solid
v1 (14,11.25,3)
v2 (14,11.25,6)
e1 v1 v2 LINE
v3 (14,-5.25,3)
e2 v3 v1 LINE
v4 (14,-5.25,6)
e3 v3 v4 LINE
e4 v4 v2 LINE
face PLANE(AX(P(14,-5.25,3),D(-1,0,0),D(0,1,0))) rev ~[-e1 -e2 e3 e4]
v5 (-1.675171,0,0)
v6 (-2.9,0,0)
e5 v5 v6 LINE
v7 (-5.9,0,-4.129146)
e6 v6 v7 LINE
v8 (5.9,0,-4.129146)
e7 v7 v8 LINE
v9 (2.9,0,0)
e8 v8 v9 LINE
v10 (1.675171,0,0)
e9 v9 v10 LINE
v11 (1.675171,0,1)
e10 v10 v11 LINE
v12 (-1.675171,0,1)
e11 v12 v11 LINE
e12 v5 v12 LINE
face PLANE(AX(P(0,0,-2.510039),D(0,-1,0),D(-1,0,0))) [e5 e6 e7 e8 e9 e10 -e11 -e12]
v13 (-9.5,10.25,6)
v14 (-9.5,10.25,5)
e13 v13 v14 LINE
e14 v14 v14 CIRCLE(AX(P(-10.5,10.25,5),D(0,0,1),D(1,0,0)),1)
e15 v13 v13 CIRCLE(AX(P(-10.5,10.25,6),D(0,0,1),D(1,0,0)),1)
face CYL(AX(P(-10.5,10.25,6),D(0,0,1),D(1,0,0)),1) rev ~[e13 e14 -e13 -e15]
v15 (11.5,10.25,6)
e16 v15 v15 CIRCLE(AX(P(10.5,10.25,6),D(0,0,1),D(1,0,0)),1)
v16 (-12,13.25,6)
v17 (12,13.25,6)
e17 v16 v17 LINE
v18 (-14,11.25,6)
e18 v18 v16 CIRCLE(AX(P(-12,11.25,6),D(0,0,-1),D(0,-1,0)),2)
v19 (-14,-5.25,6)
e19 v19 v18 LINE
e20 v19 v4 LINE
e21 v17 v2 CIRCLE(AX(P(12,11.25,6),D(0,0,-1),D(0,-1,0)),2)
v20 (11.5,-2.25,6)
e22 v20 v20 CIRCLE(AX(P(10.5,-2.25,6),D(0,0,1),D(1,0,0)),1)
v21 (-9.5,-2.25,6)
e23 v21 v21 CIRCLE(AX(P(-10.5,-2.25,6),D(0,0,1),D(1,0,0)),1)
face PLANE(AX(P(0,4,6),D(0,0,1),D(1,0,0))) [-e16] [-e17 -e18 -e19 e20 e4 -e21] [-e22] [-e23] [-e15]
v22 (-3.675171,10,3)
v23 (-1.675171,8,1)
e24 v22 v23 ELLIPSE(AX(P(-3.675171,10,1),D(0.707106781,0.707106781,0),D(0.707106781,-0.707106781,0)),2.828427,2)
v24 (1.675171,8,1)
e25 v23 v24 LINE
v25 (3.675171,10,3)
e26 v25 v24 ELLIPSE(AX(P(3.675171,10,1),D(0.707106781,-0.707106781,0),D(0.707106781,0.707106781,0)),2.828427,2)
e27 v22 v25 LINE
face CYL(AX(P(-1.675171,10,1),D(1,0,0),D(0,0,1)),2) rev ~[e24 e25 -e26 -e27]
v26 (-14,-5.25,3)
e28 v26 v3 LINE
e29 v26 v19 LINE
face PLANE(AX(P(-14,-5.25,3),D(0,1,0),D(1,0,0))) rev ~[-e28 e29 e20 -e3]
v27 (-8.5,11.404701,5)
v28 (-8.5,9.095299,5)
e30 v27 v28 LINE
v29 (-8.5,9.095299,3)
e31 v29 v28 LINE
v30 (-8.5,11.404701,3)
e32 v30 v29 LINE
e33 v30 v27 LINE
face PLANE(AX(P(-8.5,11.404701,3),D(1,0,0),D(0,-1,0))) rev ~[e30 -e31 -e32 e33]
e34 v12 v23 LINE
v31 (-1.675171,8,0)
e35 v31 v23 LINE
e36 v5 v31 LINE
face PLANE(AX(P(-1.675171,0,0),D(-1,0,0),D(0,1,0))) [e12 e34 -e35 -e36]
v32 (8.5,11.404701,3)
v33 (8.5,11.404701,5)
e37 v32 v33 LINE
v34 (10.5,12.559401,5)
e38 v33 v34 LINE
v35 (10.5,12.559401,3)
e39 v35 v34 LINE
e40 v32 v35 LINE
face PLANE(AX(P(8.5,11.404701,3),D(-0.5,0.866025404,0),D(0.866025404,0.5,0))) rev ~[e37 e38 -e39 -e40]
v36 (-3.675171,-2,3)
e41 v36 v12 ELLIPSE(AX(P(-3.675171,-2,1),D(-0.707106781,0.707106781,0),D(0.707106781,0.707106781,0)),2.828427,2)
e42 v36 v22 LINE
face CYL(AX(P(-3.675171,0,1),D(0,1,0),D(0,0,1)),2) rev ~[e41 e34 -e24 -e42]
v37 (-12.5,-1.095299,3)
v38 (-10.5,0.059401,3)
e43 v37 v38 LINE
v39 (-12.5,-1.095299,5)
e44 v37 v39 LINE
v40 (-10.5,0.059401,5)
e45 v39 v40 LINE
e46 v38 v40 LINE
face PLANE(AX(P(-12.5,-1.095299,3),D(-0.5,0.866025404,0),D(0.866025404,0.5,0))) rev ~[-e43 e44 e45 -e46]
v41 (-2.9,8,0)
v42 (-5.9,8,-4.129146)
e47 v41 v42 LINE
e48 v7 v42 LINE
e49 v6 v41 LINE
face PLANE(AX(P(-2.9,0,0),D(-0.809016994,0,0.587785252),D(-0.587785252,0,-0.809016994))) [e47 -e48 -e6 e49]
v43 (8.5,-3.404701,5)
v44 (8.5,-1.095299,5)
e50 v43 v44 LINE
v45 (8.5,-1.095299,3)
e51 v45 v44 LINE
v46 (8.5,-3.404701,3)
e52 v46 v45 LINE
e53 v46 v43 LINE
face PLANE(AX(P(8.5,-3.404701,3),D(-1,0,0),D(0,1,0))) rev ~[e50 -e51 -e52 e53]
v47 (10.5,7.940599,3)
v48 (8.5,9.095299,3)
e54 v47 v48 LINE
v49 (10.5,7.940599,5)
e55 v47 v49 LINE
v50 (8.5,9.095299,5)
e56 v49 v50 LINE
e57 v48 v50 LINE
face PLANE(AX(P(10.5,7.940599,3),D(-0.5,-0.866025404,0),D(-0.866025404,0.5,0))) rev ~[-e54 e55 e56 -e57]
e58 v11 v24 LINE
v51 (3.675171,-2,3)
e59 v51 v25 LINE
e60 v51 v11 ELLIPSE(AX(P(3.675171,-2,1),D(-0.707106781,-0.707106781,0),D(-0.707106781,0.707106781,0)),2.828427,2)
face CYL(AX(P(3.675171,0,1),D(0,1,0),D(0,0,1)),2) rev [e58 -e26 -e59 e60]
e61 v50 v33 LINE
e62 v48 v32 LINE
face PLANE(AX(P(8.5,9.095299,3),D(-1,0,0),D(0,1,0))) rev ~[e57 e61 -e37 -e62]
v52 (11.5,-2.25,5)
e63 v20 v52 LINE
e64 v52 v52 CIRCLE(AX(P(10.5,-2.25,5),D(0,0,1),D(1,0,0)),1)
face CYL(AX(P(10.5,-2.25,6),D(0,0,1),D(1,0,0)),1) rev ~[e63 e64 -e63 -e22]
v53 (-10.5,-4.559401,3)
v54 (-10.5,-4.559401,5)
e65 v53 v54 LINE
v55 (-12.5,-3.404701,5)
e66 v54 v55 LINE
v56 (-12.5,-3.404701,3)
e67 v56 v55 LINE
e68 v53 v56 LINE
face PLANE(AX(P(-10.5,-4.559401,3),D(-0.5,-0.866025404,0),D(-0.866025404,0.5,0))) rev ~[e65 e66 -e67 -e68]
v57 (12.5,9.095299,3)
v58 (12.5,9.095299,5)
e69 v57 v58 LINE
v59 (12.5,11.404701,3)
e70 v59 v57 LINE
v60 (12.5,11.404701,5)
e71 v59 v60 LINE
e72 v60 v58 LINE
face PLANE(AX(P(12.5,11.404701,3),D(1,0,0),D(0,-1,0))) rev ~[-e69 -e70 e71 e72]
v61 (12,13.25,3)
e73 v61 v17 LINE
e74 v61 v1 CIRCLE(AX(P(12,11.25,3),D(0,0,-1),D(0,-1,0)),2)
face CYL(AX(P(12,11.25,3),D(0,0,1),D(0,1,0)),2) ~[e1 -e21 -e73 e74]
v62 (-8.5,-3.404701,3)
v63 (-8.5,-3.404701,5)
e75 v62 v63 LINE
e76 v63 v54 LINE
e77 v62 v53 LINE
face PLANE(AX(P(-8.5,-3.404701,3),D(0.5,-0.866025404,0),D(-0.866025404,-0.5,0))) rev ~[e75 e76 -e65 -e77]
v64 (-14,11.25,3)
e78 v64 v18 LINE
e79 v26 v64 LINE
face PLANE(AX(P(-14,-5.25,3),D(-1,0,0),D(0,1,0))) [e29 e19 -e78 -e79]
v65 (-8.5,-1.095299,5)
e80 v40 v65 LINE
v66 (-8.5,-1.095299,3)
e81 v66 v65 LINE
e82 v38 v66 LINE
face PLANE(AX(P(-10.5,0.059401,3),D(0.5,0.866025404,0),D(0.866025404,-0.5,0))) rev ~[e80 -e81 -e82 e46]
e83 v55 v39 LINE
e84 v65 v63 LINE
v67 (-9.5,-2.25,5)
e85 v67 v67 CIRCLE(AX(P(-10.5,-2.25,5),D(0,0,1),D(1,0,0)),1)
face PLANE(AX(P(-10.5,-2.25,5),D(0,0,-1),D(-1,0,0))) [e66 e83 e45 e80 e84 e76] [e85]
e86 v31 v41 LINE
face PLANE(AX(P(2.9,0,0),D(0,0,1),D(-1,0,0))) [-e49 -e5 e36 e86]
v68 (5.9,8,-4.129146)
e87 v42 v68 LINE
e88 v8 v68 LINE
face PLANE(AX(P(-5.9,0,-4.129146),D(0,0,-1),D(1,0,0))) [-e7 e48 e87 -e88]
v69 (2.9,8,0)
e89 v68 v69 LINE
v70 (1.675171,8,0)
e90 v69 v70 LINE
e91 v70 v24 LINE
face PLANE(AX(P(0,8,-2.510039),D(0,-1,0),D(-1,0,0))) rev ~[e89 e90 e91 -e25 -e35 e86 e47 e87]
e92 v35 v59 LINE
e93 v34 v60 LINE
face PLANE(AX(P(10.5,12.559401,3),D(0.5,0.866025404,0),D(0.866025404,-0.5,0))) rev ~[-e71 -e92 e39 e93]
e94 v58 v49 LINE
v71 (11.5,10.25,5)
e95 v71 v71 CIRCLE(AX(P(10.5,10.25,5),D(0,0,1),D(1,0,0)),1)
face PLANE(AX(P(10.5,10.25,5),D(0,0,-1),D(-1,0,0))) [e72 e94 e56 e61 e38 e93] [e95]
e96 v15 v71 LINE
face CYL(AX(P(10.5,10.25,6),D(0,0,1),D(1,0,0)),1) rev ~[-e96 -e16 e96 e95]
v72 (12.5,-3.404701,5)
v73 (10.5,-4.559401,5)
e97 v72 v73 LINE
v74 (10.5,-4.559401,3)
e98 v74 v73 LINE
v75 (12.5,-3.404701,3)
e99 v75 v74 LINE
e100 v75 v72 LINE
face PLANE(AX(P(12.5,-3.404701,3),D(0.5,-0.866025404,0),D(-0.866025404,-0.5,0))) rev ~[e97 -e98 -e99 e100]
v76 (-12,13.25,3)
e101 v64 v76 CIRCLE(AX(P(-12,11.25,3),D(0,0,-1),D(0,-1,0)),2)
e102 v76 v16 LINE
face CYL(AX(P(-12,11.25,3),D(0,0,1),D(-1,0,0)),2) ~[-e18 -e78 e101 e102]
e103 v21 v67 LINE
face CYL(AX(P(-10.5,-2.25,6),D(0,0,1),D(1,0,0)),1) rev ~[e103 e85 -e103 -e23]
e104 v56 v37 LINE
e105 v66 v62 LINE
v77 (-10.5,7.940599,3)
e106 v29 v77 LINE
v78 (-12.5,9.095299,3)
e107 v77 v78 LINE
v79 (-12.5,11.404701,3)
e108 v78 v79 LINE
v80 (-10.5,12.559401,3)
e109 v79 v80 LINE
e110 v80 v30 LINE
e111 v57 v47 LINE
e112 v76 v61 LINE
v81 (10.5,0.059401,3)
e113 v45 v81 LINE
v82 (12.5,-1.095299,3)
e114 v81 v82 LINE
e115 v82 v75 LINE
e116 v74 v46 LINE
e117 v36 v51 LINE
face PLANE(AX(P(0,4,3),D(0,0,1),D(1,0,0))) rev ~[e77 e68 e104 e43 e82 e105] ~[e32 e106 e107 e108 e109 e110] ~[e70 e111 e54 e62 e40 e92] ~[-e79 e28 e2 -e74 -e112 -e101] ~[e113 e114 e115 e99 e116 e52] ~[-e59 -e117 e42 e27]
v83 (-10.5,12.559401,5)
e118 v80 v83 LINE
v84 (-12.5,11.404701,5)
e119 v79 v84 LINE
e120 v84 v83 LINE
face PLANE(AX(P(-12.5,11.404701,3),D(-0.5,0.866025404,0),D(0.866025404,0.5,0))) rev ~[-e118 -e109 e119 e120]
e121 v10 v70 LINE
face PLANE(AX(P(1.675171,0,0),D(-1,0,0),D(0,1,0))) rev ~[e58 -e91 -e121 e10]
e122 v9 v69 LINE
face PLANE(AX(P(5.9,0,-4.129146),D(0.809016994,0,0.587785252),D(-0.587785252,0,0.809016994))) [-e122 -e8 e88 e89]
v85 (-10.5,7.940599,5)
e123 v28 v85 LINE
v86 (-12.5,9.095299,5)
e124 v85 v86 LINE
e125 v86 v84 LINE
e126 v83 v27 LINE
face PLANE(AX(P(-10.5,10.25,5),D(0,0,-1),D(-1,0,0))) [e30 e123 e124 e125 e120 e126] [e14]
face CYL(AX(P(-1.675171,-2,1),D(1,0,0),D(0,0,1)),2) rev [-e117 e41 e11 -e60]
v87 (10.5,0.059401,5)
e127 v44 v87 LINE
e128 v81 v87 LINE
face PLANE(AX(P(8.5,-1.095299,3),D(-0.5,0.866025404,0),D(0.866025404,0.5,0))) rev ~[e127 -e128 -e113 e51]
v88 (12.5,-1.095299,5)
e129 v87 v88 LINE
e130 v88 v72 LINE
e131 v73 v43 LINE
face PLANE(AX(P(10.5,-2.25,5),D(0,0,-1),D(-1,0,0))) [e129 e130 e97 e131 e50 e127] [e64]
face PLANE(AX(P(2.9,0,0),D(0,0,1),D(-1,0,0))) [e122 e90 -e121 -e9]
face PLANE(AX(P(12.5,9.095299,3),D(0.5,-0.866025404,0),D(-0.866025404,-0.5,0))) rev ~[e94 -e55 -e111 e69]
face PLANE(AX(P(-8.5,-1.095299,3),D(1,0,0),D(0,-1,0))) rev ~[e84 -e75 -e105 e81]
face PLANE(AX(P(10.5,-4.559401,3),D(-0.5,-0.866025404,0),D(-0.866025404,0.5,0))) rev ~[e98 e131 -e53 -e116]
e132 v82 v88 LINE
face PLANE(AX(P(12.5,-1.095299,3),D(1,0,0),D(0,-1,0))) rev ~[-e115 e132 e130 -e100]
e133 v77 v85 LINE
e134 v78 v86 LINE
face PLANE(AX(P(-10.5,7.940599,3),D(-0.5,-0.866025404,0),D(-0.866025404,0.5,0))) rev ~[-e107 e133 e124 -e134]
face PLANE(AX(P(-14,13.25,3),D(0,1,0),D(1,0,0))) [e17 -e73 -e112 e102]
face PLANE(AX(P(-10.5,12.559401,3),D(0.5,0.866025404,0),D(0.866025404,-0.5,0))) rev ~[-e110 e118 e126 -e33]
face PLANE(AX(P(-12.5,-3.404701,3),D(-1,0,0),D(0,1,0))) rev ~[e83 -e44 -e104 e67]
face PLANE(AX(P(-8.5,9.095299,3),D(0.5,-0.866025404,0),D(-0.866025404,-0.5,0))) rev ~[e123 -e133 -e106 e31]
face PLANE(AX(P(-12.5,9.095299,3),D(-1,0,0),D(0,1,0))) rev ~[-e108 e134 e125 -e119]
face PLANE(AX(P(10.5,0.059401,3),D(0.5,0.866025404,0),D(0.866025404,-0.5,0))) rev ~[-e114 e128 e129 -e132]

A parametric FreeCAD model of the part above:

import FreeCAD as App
import Part
import Sketcher
from FreeCAD import Vector
Q = App.Units.Quantity


def edges_at(feature, points):
    """Names of the edges that pass closest to the given points."""
    edges = feature.Shape.Edges
    near = lambda p: min(range(len(edges)), key=lambda i: edges[i].distToShape(Part.Vertex(*p))[0])
    return sorted({f"Edge{near(p) + 1}" for p in points})


def add_polygon(sketch, points):
    """Adds a closed chain of lines whose ends are joined by coincident constraints."""
    first, n = sketch.GeometryCount, len(points)
    for a, b in zip(points, points[1:] + points[:1]):
        sketch.addGeometry(Part.LineSegment(App.Vector(*a, 0), App.Vector(*b, 0)), False)
    for i in range(n):
        sketch.addConstraint(Sketcher.Constraint("Coincident", first + i, 2, first + (i + 1) % n, 1))

doc = App.newDocument("Part")
params = doc.addObject("Spreadsheet::Sheet", "Params")
for row, (alias, value) in enumerate([
    ("sketch1_width", "5.8 mm"),
    ("sketch1_width2", "11.8 mm"),
    ("pad1_length", "8 mm"),
    ("sketch2_height", "8 mm"),
    ("pad2_length", "3 mm"),
    ("sketch3_width", "28 mm"),
    ("sketch3_height", "18.5 mm"),
    ("pad3_length", "3 mm"),
    ("fillet_radius", "2 mm"),
    ("sketch4_diameter", "2 mm"),
    ("pocket1_length", "3 mm"),
    ("pocket2_length", "2 mm"),
    ("fillet2_radius", "2 mm"),
], start=1):
    params.set(f"A{row}", alias)
    params.set(f"B{row}", "=" + value)
    params.setAlias(f"B{row}", alias)

body = doc.addObject("PartDesign::Body", "Body")

sketch1 = body.newObject("Sketcher::SketchObject", "Sketch")
sketch1.AttachmentSupport = (doc.getObject("XZ_Plane"), [""])
sketch1.MapMode = "FlatFace"
add_polygon(sketch1, [(-6, -4), (-3, 0), (3, 0), (6, -4)])
sketch1.addConstraint([
    Sketcher.Constraint("Horizontal", 1),
    Sketcher.Constraint("Horizontal", 3),
    Sketcher.Constraint("Symmetric", 0, 2, 1, 2, -1, 1),
    Sketcher.Constraint("Equal", 0, 2),
    Sketcher.Constraint("Angle", 0, Q("54 deg")),
    Sketcher.Constraint("DistanceX", 1, 1, 1, 2, Q("5.8 mm")),
    Sketcher.Constraint("DistanceX", 3, 2, 3, 1, Q("11.8 mm")),
])
sketch1.setExpression("Constraints[9]", "Params.sketch1_width")
sketch1.setExpression("Constraints[10]", "Params.sketch1_width2")
pad1 = body.newObject("PartDesign::Pad", "Pad")
pad1.Profile = sketch1
pad1.setExpression("Length", "Params.pad1_length")
pad1.Reversed = True

sketch2 = body.newObject("Sketcher::SketchObject", "Sketch001")
sketch2.AttachmentSupport = (doc.getObject("XY_Plane"), [""])
sketch2.MapMode = "FlatFace"
add_polygon(sketch2, [(-1.7, 8), (-1.7, 0), (1.7, 0), (1.7, 8)])
sketch2.addConstraint([
    Sketcher.Constraint("Vertical", 0),
    Sketcher.Constraint("Horizontal", 1),
    Sketcher.Constraint("Vertical", 2),
    Sketcher.Constraint("Horizontal", 3),
    Sketcher.Constraint("Symmetric", 0, 2, 1, 2, -1, 1),
    Sketcher.Constraint("DistanceY", 0, 2, 0, 1, Q("8 mm")),
    Sketcher.Constraint("DistanceX", 1, 1, 1, 2, Q("3.350341 mm")),
])
sketch2.setExpression("Constraints[9]", "Params.sketch2_height")
pad2 = body.newObject("PartDesign::Pad", "Pad001")
pad2.Profile = sketch2
pad2.setExpression("Length", "Params.pad2_length")

sketch3 = body.newObject("Sketcher::SketchObject", "Sketch002")
sketch3.AttachmentSupport = (doc.getObject("XY_Plane"), [""])
sketch3.MapMode = "FlatFace"
sketch3.AttachmentOffset = App.Placement(Vector(0, 0, 3), App.Rotation())
add_polygon(sketch3, [(-14, 13), (-14, -5), (14, -5), (14, 13)])
sketch3.addConstraint([
    Sketcher.Constraint("Vertical", 0),
    Sketcher.Constraint("Horizontal", 1),
    Sketcher.Constraint("Vertical", 2),
    Sketcher.Constraint("Horizontal", 3),
    Sketcher.Constraint("DistanceX", 1, 1, 1, 2, Q("28 mm")),
    Sketcher.Constraint("DistanceY", 0, 2, 0, 1, Q("18.5 mm")),
    Sketcher.Constraint("DistanceX", 0, 2, -1, 1, Q("14 mm")),
    Sketcher.Constraint("DistanceY", 0, 2, -1, 1, Q("5.25 mm")),
])
sketch3.setExpression("Constraints[8]", "Params.sketch3_width")
sketch3.setExpression("Constraints[9]", "Params.sketch3_height")
pad3 = body.newObject("PartDesign::Pad", "Pad002")
pad3.Profile = sketch3
pad3.setExpression("Length", "Params.pad3_length")
doc.recompute()

fillet = body.newObject("PartDesign::Fillet", "Fillet")
fillet.Base = (pad3, edges_at(pad3, [
    (1.675, 4, 3),
    (0, 8, 3),
    (-1.675, 4, 3),
    (0, 0, 3),
]))
fillet.setExpression("Radius", "Params.fillet_radius")

sketch4 = body.newObject("Sketcher::SketchObject", "Sketch003")
sketch4.AttachmentSupport = (doc.getObject("XY_Plane"), [""])
sketch4.MapMode = "FlatFace"
sketch4.AttachmentOffset = App.Placement(Vector(0, 0, 6), App.Rotation())
sketch4.addGeometry([
    Part.Circle(Vector(-10.5, 10.2, 0), Vector(0, 0, 1), 1),
    Part.Circle(Vector(10.5, 10.2, 0), Vector(0, 0, 1), 1),
    Part.Circle(Vector(10.5, -2.2, 0), Vector(0, 0, 1), 1),
    Part.Circle(Vector(-10.5, -2.2, 0), Vector(0, 0, 1), 1),
], False)
sketch4.addConstraint([
    Sketcher.Constraint("Equal", 0, 1),
    Sketcher.Constraint("Equal", 1, 2),
    Sketcher.Constraint("Equal", 2, 3),
    Sketcher.Constraint("Symmetric", 0, 3, 1, 3, -2),
    Sketcher.Constraint("Symmetric", 2, 3, 3, 3, -2),
    Sketcher.Constraint("Vertical", 1, 3, 2, 3),
    Sketcher.Constraint("Diameter", 0, Q("2 mm")),
    Sketcher.Constraint("DistanceX", 0, 3, 1, 3, Q("21 mm")),
    Sketcher.Constraint("DistanceY", 2, 3, 1, 3, Q("12.5 mm")),
    Sketcher.Constraint("DistanceY", -1, 1, 0, 3, Q("10.25 mm")),
])
sketch4.setExpression("Constraints[6]", "Params.sketch4_diameter")
pocket1 = body.newObject("PartDesign::Pocket", "Pocket")
pocket1.Profile = sketch4
pocket1.setExpression("Length", "Params.pocket1_length")

sketch5 = body.newObject("Sketcher::SketchObject", "Sketch004")
sketch5.AttachmentSupport = (doc.getObject("XY_Plane"), [""])
sketch5.MapMode = "FlatFace"
sketch5.AttachmentOffset = App.Placement(Vector(0, 0, 3), App.Rotation())
add_polygon(sketch5, [(10.5, 12.6), (12.5, 11.4), (12.5, 9.1), (10.5, 7.9), (8.5, 9.1), (8.5, 11.4)])
add_polygon(sketch5, [(-10.5, 12.6), (-8.5, 11.4), (-8.5, 9.1), (-10.5, 7.9), (-12.5, 9.1), (-12.5, 11.4)])
add_polygon(sketch5, [(10.5, -4.6), (8.5, -3.4), (8.5, -1.1), (10.5, 0.1), (12.5, -1.1), (12.5, -3.4)])
add_polygon(sketch5, [(-10.5, -4.6), (-12.5, -3.4), (-12.5, -1.1), (-10.5, 0.1), (-8.5, -1.1), (-8.5, -3.4)])
sketch5.addConstraint([
    Sketcher.Constraint("Vertical", 1),
    Sketcher.Constraint("Vertical", 4),
    Sketcher.Constraint("Vertical", 7),
    Sketcher.Constraint("Vertical", 10),
    Sketcher.Constraint("Vertical", 13),
    Sketcher.Constraint("Vertical", 16),
    Sketcher.Constraint("Vertical", 19),
    Sketcher.Constraint("Vertical", 22),
    Sketcher.Constraint("Symmetric", 4, 2, 6, 2, -2),
    Sketcher.Constraint("Symmetric", 2, 2, 8, 2, -2),
    Sketcher.Constraint("Symmetric", 1, 2, 9, 2, -2),
    Sketcher.Constraint("Symmetric", 5, 2, 11, 2, -2),
    Sketcher.Constraint("Symmetric", 16, 2, 18, 2, -2),
    Sketcher.Constraint("Symmetric", 14, 2, 20, 2, -2),
    Sketcher.Constraint("Symmetric", 13, 2, 21, 2, -2),
    Sketcher.Constraint("Symmetric", 17, 2, 23, 2, -2),
    Sketcher.Constraint("Parallel", 0, 3),
    Sketcher.Constraint("Parallel", 2, 5),
    Sketcher.Constraint("Parallel", 3, 6),
    Sketcher.Constraint("Parallel", 5, 8),
    Sketcher.Constraint("Parallel", 8, 11),
    Sketcher.Constraint("Parallel", 9, 12),
    Sketcher.Constraint("Parallel", 11, 14),
    Sketcher.Constraint("Parallel", 12, 15),
    Sketcher.Constraint("Parallel", 14, 17),
    Sketcher.Constraint("Parallel", 17, 20),
    Sketcher.Constraint("Parallel", 20, 23),
    Sketcher.Constraint("Horizontal", 1, 2, 3, 2),
    Sketcher.Constraint("Horizontal", 0, 2, 4, 2),
    Sketcher.Constraint("Horizontal", 13, 2, 15, 2),
    Sketcher.Constraint("Horizontal", 12, 2, 16, 2),
    Sketcher.Constraint("Vertical", 4, 2, 12, 2),
    Sketcher.Constraint("Vertical", 5, 2, 14, 2),
    Sketcher.Constraint("Equal", 10, 13),
    Sketcher.Constraint("Angle", 0, Q("-30 deg")),
    Sketcher.Constraint("DistanceX", 2, 2, 1, 2, Q("2 mm")),
    Sketcher.Constraint("DistanceX", 6, 2, 4, 2, Q("17 mm")),
    Sketcher.Constraint("DistanceY", 12, 2, 3, 2, Q("12.5 mm")),
    Sketcher.Constraint("DistanceY", 1, 2, 1, 1, Q("2.309401 mm")),
    Sketcher.Constraint("DistanceY", -1, 1, 0, 2, Q("11.404701 mm")),
])
pocket2 = body.newObject("PartDesign::Pocket", "Pocket001")
pocket2.Profile = sketch5
pocket2.setExpression("Length", "Params.pocket2_length")
pocket2.Reversed = True
doc.recompute()

fillet2 = body.newObject("PartDesign::Fillet", "Fillet001")
fillet2.Base = (pocket2, edges_at(pocket2, [(14, 13.25, 4.5), (-14, 13.25, 4.5)]))
fillet2.setExpression("Radius", "Params.fillet2_radius")

doc.recompute()
